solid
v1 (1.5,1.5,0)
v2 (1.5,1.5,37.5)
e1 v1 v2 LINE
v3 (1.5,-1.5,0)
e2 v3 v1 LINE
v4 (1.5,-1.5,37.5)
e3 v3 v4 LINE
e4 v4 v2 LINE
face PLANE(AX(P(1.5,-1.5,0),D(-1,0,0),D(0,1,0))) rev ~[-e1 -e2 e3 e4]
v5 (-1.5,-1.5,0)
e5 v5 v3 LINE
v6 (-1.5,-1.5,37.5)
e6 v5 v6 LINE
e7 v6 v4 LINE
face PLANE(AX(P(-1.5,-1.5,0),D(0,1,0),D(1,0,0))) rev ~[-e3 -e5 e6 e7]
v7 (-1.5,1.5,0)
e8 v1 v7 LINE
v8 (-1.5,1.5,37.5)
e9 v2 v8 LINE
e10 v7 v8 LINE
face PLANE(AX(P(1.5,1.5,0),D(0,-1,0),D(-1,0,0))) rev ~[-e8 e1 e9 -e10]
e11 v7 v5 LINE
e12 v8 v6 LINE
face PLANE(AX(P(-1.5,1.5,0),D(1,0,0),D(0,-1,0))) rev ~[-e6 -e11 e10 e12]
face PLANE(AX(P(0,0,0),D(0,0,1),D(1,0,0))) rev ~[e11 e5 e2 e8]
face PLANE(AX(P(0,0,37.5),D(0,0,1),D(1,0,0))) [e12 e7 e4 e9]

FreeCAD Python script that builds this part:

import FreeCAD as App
import Part
import Sketcher


def add_polygon(sketch, points):
    """Adds a closed chain of lines whose ends are joined by coincident constraints."""
    first, n = sketch.GeometryCount, len(points)
    for a, b in zip(points, points[1:] + points[:1]):
        sketch.addGeometry(Part.LineSegment(App.Vector(*a, 0), App.Vector(*b, 0)), False)
    for i in range(n):
        sketch.addConstraint(Sketcher.Constraint("Coincident", first + i, 2, first + (i + 1) % n, 1))

doc = App.newDocument("Part")
params = doc.addObject("Spreadsheet::Sheet", "Params")
for row, (alias, value) in enumerate([
    ("sketch1_width", "3 mm"),
    ("pad1_length", "37.5 mm"),
], start=1):
    params.set(f"A{row}", alias)
    params.set(f"B{row}", "=" + value)
    params.setAlias(f"B{row}", alias)

body = doc.addObject("PartDesign::Body", "Body")

sketch1 = body.newObject("Sketcher::SketchObject", "Sketch")
sketch1.AttachmentSupport = (doc.getObject("XY_Plane"), [""])
sketch1.MapMode = "FlatFace"
add_polygon(sketch1, [(1.5, -1.5), (1.5, 1.5), (-1.5, 1.5), (-1.5, -1.5)])
sketch1.addConstraint([
    Sketcher.Constraint("Vertical", 0),
    Sketcher.Constraint("Horizontal", 1),
    Sketcher.Constraint("Vertical", 2),
    Sketcher.Constraint("Horizontal", 3),
    Sketcher.Constraint("Symmetric", 0, 2, 2, 2, -1, 1),
    Sketcher.Constraint("Equal", 3, 0),
    Sketcher.Constraint("DistanceX", 1, 2, 1, 1, 3.0),
])
sketch1.setExpression("Constraints[10]", "Params.sketch1_width")
pad1 = body.newObject("PartDesign::Pad", "Pad")
pad1.Profile = sketch1
pad1.setExpression("Length", "Params.pad1_length")

doc.recompute()
